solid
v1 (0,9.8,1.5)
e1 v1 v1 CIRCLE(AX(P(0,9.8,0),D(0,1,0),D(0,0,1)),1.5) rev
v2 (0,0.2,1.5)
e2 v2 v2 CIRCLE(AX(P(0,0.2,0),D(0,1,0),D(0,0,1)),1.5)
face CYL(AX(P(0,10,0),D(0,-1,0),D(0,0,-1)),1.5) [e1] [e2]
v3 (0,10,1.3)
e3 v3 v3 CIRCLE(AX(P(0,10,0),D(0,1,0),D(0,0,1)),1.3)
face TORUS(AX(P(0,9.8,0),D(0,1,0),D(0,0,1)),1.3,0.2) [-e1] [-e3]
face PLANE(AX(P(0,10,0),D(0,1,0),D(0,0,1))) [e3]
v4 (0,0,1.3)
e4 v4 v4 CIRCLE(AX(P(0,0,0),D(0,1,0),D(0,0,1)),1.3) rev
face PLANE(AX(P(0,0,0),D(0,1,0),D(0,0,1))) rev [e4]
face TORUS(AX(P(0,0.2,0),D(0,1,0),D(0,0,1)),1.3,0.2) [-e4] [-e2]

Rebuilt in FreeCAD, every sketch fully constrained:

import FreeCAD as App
import Part
import Sketcher
from FreeCAD import Vector


def edges_at(feature, points):
    """Names of the edges that pass closest to the given points."""
    edges = feature.Shape.Edges
    near = lambda p: min(range(len(edges)), key=lambda i: edges[i].distToShape(Part.Vertex(*p))[0])
    return sorted({f"Edge{near(p) + 1}" for p in points})

doc = App.newDocument("Part")
body = doc.addObject("PartDesign::Body", "Body")

# Sketch on XZ plane
sketch1 = body.newObject("Sketcher::SketchObject", "Sketch")
sketch1.AttachmentSupport = (doc.getObject("XZ_Plane"), [""])
sketch1.MapMode = "FlatFace"
sketch1.addGeometry(Part.Circle(Vector(0, 0, 0), Vector(0, 0, 1), 1.5), False)
sketch1.addConstraint([
    Sketcher.Constraint("Coincident", 0, 3, -1, 1),
    Sketcher.Constraint("Diameter", 0, 3.0),
])
pad1 = body.newObject("PartDesign::Pad", "Pad")
pad1.Profile = sketch1
pad1.Length = 10
pad1.Reversed = True
doc.recompute()

fillet = body.newObject("PartDesign::Fillet", "Fillet")
fillet.Base = (pad1, edges_at(pad1, [(-1.5, 0, 0), (-1.5, 10, 0)]))
fillet.Radius = 0.2

doc.recompute()
